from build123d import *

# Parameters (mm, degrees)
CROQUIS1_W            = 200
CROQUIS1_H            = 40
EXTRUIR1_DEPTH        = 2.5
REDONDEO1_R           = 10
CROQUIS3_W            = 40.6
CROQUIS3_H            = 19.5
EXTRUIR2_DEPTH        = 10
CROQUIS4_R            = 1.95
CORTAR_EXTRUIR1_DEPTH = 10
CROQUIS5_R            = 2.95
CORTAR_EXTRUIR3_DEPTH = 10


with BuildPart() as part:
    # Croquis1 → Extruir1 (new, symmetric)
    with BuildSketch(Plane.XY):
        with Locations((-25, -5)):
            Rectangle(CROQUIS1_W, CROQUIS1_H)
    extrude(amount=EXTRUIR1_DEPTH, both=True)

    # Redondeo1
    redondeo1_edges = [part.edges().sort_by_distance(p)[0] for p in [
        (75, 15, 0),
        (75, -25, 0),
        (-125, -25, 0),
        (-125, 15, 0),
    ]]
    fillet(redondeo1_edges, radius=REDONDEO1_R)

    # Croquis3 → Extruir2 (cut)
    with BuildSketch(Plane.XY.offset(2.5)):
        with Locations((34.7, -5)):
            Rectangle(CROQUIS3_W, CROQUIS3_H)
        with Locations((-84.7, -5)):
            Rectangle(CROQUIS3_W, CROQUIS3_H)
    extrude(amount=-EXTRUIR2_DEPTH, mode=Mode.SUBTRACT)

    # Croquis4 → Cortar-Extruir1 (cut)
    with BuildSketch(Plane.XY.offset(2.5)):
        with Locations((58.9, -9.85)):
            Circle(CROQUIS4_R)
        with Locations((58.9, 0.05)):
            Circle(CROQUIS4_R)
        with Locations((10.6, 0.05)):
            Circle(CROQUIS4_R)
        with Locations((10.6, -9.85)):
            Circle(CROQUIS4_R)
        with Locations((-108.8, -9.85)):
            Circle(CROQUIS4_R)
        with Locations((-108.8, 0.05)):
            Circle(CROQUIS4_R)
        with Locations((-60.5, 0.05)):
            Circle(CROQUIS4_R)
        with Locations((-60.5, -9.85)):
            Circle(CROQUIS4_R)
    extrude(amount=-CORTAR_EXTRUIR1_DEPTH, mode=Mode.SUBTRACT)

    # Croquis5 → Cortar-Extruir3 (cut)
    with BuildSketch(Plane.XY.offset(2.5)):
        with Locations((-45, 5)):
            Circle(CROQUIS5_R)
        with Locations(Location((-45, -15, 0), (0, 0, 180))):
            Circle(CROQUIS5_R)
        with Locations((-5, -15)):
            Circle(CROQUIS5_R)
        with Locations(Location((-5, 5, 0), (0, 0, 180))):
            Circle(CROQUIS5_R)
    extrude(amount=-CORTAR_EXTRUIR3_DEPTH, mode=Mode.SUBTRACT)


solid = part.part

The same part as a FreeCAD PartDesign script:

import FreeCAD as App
import Part
import Sketcher
from FreeCAD import Vector


def edges_at(feature, points):
    """Names of the edges that pass closest to the given points."""
    edges = feature.Shape.Edges
    near = lambda p: min(range(len(edges)), key=lambda i: edges[i].distToShape(Part.Vertex(*p))[0])
    return sorted({f"Edge{near(p) + 1}" for p in points})


def add_polygon(sketch, points):
    """Adds a closed chain of lines whose ends are joined by coincident constraints."""
    first, n = sketch.GeometryCount, len(points)
    for a, b in zip(points, points[1:] + points[:1]):
        sketch.addGeometry(Part.LineSegment(App.Vector(*a, 0), App.Vector(*b, 0)), False)
    for i in range(n):
        sketch.addConstraint(Sketcher.Constraint("Coincident", first + i, 2, first + (i + 1) % n, 1))

doc = App.newDocument("Part")
body = doc.addObject("PartDesign::Body", "Body")

sketch1 = body.newObject("Sketcher::SketchObject", "Sketch")
sketch1.AttachmentSupport = (doc.getObject("XY_Plane"), [""])
sketch1.MapMode = "FlatFace"
add_polygon(sketch1, [(-125, 15), (-125, -25), (75, -25), (75, 15)])
sketch1.addConstraint(Sketcher.Constraint("Vertical", 0))
sketch1.addConstraint(Sketcher.Constraint("Horizontal", 1))
sketch1.addConstraint(Sketcher.Constraint("Vertical", 2))
sketch1.addConstraint(Sketcher.Constraint("Horizontal", 3))
sketch1.addConstraint(Sketcher.Constraint("DistanceX", 1, 1, 1, 2, 200.0))
sketch1.addConstraint(Sketcher.Constraint("DistanceY", 0, 2, 0, 1, 40.0))
sketch1.addConstraint(Sketcher.Constraint("DistanceX", 0, 2, -1, 1, 125.0))
sketch1.addConstraint(Sketcher.Constraint("DistanceY", 0, 2, -1, 1, 25.0))
pad1 = body.newObject("PartDesign::Pad", "Pad")
pad1.Profile = sketch1
pad1.Length = 5
pad1.Midplane = True
doc.recompute()

fillet = body.newObject("PartDesign::Fillet", "Fillet")
fillet.Base = (pad1, edges_at(pad1, [
    (75, 15, 0),
    (75, -25, 0),
    (-125, -25, 0),
    (-125, 15, 0),
]))
fillet.Radius = 10

sketch2 = body.newObject("Sketcher::SketchObject", "Sketch001")
sketch2.AttachmentSupport = (doc.getObject("XY_Plane"), [""])
sketch2.MapMode = "FlatFace"
sketch2.AttachmentOffset = App.Placement(Vector(0, 0, 2.5), App.Rotation())
add_polygon(sketch2, [(14, 5), (14, -15), (55, -15), (55, 5)])
add_polygon(sketch2, [(-105, 5), (-105, -15), (-64, -15), (-64, 5)])
sketch2.addConstraint(Sketcher.Constraint("Vertical", 0))
sketch2.addConstraint(Sketcher.Constraint("Horizontal", 1))
sketch2.addConstraint(Sketcher.Constraint("Vertical", 2))
sketch2.addConstraint(Sketcher.Constraint("Horizontal", 3))
sketch2.addConstraint(Sketcher.Constraint("Vertical", 4))
sketch2.addConstraint(Sketcher.Constraint("Horizontal", 5))
sketch2.addConstraint(Sketcher.Constraint("Vertical", 6))
sketch2.addConstraint(Sketcher.Constraint("Horizontal", 7))
sketch2.addConstraint(Sketcher.Constraint("Horizontal", 1, 2, 4, 2))
sketch2.addConstraint(Sketcher.Constraint("Horizontal", 3, 2, 6, 2))
sketch2.addConstraint(Sketcher.Constraint("Equal", 3, 5))
sketch2.addConstraint(Sketcher.Constraint("DistanceX", 1, 1, 1, 2, 40.6))
sketch2.addConstraint(Sketcher.Constraint("DistanceY", 0, 2, 0, 1, 19.5))
sketch2.addConstraint(Sketcher.Constraint("DistanceX", -1, 1, 1, 2, 55.0))
sketch2.addConstraint(Sketcher.Constraint("DistanceX", 4, 2, -1, 1, 105.0))
sketch2.addConstraint(Sketcher.Constraint("DistanceY", 0, 2, -1, 1, 14.75))
pocket1 = body.newObject("PartDesign::Pocket", "Pocket")
pocket1.Profile = sketch2
pocket1.Length = 10

sketch3 = body.newObject("Sketcher::SketchObject", "Sketch002")
sketch3.AttachmentSupport = (doc.getObject("XY_Plane"), [""])
sketch3.MapMode = "FlatFace"
sketch3.AttachmentOffset = App.Placement(Vector(0, 0, 2.5), App.Rotation())
sketch3.addGeometry(Part.Circle(Vector(58.9, -9.8, 0), Vector(0, 0, 1), 1.9), False)
sketch3.addGeometry(Part.Circle(Vector(58.9, 0.1, 0), Vector(0, 0, 1), 1.9), False)
sketch3.addGeometry(Part.Circle(Vector(10.6, 0.1, 0), Vector(0, 0, 1), 1.9), False)
sketch3.addGeometry(Part.Circle(Vector(10.6, -9.8, 0), Vector(0, 0, 1), 1.9), False)
sketch3.addGeometry(Part.Circle(Vector(-108.8, -9.8, 0), Vector(0, 0, 1), 1.9), False)
sketch3.addGeometry(Part.Circle(Vector(-108.8, 0.1, 0), Vector(0, 0, 1), 1.9), False)
sketch3.addGeometry(Part.Circle(Vector(-60.5, 0.1, 0), Vector(0, 0, 1), 1.9), False)
sketch3.addGeometry(Part.Circle(Vector(-60.5, -9.8, 0), Vector(0, 0, 1), 1.9), False)
sketch3.addConstraint(Sketcher.Constraint("Equal", 0, 1))
sketch3.addConstraint(Sketcher.Constraint("Equal", 1, 2))
sketch3.addConstraint(Sketcher.Constraint("Equal", 2, 3))
sketch3.addConstraint(Sketcher.Constraint("Equal", 3, 4))
sketch3.addConstraint(Sketcher.Constraint("Equal", 4, 5))
sketch3.addConstraint(Sketcher.Constraint("Equal", 5, 6))
sketch3.addConstraint(Sketcher.Constraint("Equal", 6, 7))
sketch3.addConstraint(Sketcher.Constraint("Horizontal", 1, 3, 2, 3))
sketch3.addConstraint(Sketcher.Constraint("Horizontal", 0, 3, 3, 3))
sketch3.addConstraint(Sketcher.Constraint("Horizontal", 3, 3, 4, 3))
sketch3.addConstraint(Sketcher.Constraint("Horizontal", 2, 3, 5, 3))
sketch3.addConstraint(Sketcher.Constraint("Horizontal", 5, 3, 6, 3))
sketch3.addConstraint(Sketcher.Constraint("Horizontal", 4, 3, 7, 3))
sketch3.addConstraint(Sketcher.Constraint("Vertical", 0, 3, 1, 3))
sketch3.addConstraint(Sketcher.Constraint("Vertical", 2, 3, 3, 3))
sketch3.addConstraint(Sketcher.Constraint("Vertical", 4, 3, 5, 3))
sketch3.addConstraint(Sketcher.Constraint("Vertical", 6, 3, 7, 3))
sketch3.addConstraint(Sketcher.Constraint("Diameter", 0, 3.9))
sketch3.addConstraint(Sketcher.Constraint("DistanceX", -1, 1, 0, 3, 58.9))
sketch3.addConstraint(Sketcher.Constraint("DistanceX", -1, 1, 2, 3, 10.6))
sketch3.addConstraint(Sketcher.Constraint("DistanceX", 4, 3, -1, 1, 108.8))
sketch3.addConstraint(Sketcher.Constraint("DistanceX", 6, 3, -1, 1, 60.5))
sketch3.addConstraint(Sketcher.Constraint("DistanceY", 0, 3, 1, 3, 9.9))
sketch3.addConstraint(Sketcher.Constraint("DistanceY", 0, 3, -1, 1, 9.85))
pocket2 = body.newObject("PartDesign::Pocket", "Pocket001")
pocket2.Profile = sketch3
pocket2.Length = 10

sketch4 = body.newObject("Sketcher::SketchObject", "Sketch003")
sketch4.AttachmentSupport = (doc.getObject("XY_Plane"), [""])
sketch4.MapMode = "FlatFace"
sketch4.AttachmentOffset = App.Placement(Vector(0, 0, 2.5), App.Rotation())
sketch4.addGeometry(Part.Circle(Vector(-45, 5, 0), Vector(0, 0, 1), 3), False)
sketch4.addGeometry(Part.Circle(Vector(-45, -15, 0), Vector(0, 0, 1), 3), False)
sketch4.addGeometry(Part.Circle(Vector(-5, -15, 0), Vector(0, 0, 1), 3), False)
sketch4.addGeometry(Part.Circle(Vector(-5, 5, 0), Vector(0, 0, 1), 3), False)
sketch4.addConstraint(Sketcher.Constraint("Equal", 0, 1))
sketch4.addConstraint(Sketcher.Constraint("Equal", 1, 2))
sketch4.addConstraint(Sketcher.Constraint("Equal", 2, 3))
sketch4.addConstraint(Sketcher.Constraint("Horizontal", 1, 3, 2, 3))
sketch4.addConstraint(Sketcher.Constraint("Horizontal", 0, 3, 3, 3))
sketch4.addConstraint(Sketcher.Constraint("Vertical", 0, 3, 1, 3))
sketch4.addConstraint(Sketcher.Constraint("Vertical", 2, 3, 3, 3))
sketch4.addConstraint(Sketcher.Constraint("Diameter", 0, 5.9))
sketch4.addConstraint(Sketcher.Constraint("DistanceX", 0, 3, -1, 1, 45.0))
sketch4.addConstraint(Sketcher.Constraint("DistanceY", -1, 1, 0, 3, 5.0))
sketch4.addConstraint(Sketcher.Constraint("DistanceY", 1, 3, -1, 1, 15.0))
sketch4.addConstraint(Sketcher.Constraint("DistanceX", 2, 3, -1, 1, 5.0))
pocket3 = body.newObject("PartDesign::Pocket", "Pocket002")
pocket3.Profile = sketch4
pocket3.Length = 10

doc.recompute()
